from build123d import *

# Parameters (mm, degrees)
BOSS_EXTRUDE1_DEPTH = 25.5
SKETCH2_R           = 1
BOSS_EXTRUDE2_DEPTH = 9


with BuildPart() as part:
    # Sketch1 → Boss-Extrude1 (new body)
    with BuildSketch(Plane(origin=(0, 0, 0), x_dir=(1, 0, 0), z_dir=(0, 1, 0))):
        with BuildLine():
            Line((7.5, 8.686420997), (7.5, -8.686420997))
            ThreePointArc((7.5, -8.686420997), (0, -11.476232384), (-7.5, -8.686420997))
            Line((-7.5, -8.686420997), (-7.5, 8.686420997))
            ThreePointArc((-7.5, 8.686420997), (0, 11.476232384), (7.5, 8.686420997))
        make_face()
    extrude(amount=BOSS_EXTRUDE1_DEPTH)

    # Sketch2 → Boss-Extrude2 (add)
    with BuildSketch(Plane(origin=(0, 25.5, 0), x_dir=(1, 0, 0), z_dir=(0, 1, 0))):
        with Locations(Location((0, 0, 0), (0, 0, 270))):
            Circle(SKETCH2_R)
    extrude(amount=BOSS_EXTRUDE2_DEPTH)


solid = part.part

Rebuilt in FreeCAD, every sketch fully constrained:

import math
import FreeCAD as App
import Part
import Sketcher
from FreeCAD import Vector

doc = App.newDocument("Part")
params = doc.addObject("Spreadsheet::Sheet", "Params")
for row, (alias, value) in enumerate([
    ("pad1_length", "25.5 mm"),
    ("sketch2_diameter", "2 mm"),
    ("pad2_length", "9 mm"),
], start=1):
    params.set(f"A{row}", alias)
    params.set(f"B{row}", "=" + value)
    params.setAlias(f"B{row}", alias)

body = doc.addObject("PartDesign::Body", "Body")

# Sketch on XZ plane
sketch1 = body.newObject("Sketcher::SketchObject", "Sketch")
sketch1.AttachmentSupport = (doc.getObject("XZ_Plane"), [""])
sketch1.MapMode = "FlatFace"
sketch1.addGeometry([
    Part.LineSegment(Vector(8, 9, 0), Vector(8, -9, 0)),
    Part.ArcOfCircle(Part.Circle(Vector(0, 0, 0), Vector(0, 0, 1), 11), math.radians(-131), math.radians(-49)),
    Part.LineSegment(Vector(-8, -9, 0), Vector(-8, 9, 0)),
    Part.ArcOfCircle(Part.Circle(Vector(0, 0, 0), Vector(0, 0, 1), 11), math.radians(49), math.radians(131)),
], False)
sketch1.addConstraint([
    Sketcher.Constraint("Coincident", 0, 2, 1, 2),
    Sketcher.Constraint("Coincident", 1, 1, 2, 1),
    Sketcher.Constraint("Coincident", 2, 2, 3, 2),
    Sketcher.Constraint("Coincident", 3, 1, 0, 1),
    Sketcher.Constraint("Vertical", 0),
    Sketcher.Constraint("Vertical", 2),
    Sketcher.Constraint("Coincident", 1, 3, -1, 1),
    Sketcher.Constraint("Coincident", 3, 3, -1, 1),
    Sketcher.Constraint("Equal", 1, 3),
    Sketcher.Constraint("Horizontal", 0, 2, 1, 1),
    Sketcher.Constraint("DistanceX", 1, 1, 0, 2, 15.0),
    Sketcher.Constraint("Radius", 1, 11.476232),
])
pad1 = body.newObject("PartDesign::Pad", "Pad")
pad1.Profile = sketch1
pad1.setExpression("Length", "Params.pad1_length")
pad1.Reversed = True

# Sketch on XZ plane
sketch2 = body.newObject("Sketcher::SketchObject", "Sketch001")
sketch2.AttachmentSupport = (doc.getObject("XZ_Plane"), [""])
sketch2.MapMode = "FlatFace"
sketch2.AttachmentOffset = App.Placement(Vector(0, 0, -25.5), App.Rotation())
sketch2.addGeometry(Part.Circle(Vector(0, 0, 0), Vector(0, 0, 1), 1), False)
sketch2.addConstraint([
    Sketcher.Constraint("Coincident", 0, 3, -1, 1),
    Sketcher.Constraint("Diameter", 0, 2.0),
])
sketch2.setExpression("Constraints[1]", "Params.sketch2_diameter")
pad2 = body.newObject("PartDesign::Pad", "Pad001")
pad2.Profile = sketch2
pad2.setExpression("Length", "Params.pad2_length")
pad2.Reversed = True

doc.recompute()
